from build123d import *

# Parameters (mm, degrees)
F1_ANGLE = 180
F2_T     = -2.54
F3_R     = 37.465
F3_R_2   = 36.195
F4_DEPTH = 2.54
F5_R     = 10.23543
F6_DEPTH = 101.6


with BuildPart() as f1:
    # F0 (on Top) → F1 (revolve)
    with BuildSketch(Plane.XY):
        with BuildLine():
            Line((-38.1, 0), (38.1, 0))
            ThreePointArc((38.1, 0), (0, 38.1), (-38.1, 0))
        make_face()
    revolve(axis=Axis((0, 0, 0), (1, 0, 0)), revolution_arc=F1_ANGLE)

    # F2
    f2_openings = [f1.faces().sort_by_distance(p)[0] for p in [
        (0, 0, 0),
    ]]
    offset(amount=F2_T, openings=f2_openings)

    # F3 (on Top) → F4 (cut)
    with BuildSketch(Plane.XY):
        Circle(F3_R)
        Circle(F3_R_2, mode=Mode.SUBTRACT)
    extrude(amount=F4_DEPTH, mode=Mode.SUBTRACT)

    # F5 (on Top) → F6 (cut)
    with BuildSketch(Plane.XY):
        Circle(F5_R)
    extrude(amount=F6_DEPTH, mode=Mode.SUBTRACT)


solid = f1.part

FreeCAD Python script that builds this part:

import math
import FreeCAD as App
import Part
import Sketcher

V = App.Vector
Q = App.Units.Quantity


def faces_at(feature, points):
    """Names of the faces that lie closest to the given points."""
    faces = feature.Shape.Faces
    near = lambda p: min(range(len(faces)), key=lambda i: faces[i].distToShape(Part.Vertex(*p))[0])
    return sorted({f"Face{near(p) + 1}" for p in points})

doc = App.newDocument("Part")
body = doc.addObject("PartDesign::Body", "Body")

sketch1 = body.newObject("Sketcher::SketchObject", "Sketch")
sketch1.AttachmentSupport = (doc.getObject("XY_Plane"), [""])
sketch1.MapMode = "FlatFace"
sketch1.addGeometry([
    Part.LineSegment(V(-38, 0, 0), V(38, 0, 0)),
    Part.ArcOfCircle(Part.Circle(V(0, 0, 0), V(0, 0, 1), 38), math.radians(0), math.radians(180)),
], False)
sketch1.addConstraint([
    Sketcher.Constraint("Coincident", 0, 1, 1, 2),
    Sketcher.Constraint("Coincident", 1, 1, 0, 2),
    Sketcher.Constraint("Horizontal", 0),
    Sketcher.Constraint("Coincident", 1, 3, -1, 1),
    Sketcher.Constraint("PointOnObject", 0, 1, -1),
    Sketcher.Constraint("Radius", 1, Q("1.5 in")),
])
revolution = body.newObject("PartDesign::Revolution", "Revolution")
revolution.Profile = sketch1
revolution.ReferenceAxis = (sketch1, ["H_Axis"])
revolution.Angle = 180
doc.recompute()

thickness = body.newObject("PartDesign::Thickness", "Thickness")
thickness.Base = (revolution, faces_at(revolution, [(0, 0, 0)]))
thickness.Value = Q("0.1 in")
thickness.Reversed = True
thickness.Join = "Arc"

sketch2 = body.newObject("Sketcher::SketchObject", "Sketch001")
sketch2.AttachmentSupport = (doc.getObject("XY_Plane"), [""])
sketch2.MapMode = "FlatFace"
sketch2.addGeometry([
    Part.Circle(V(0, 0, 0), V(0, 0, 1), 37),
    Part.Circle(V(0, 0, 0), V(0, 0, 1), 36),
], False)
sketch2.addConstraint([
    Sketcher.Constraint("Coincident", 0, 3, -1, 1),
    Sketcher.Constraint("Coincident", 1, 3, -1, 1),
    Sketcher.Constraint("Diameter", 0, Q("2.95 in")),
    Sketcher.Constraint("Diameter", 1, Q("2.85 in")),
])
pocket1 = body.newObject("PartDesign::Pocket", "Pocket")
pocket1.Profile = sketch2
pocket1.Length = Q("0.1 in")
pocket1.Reversed = True

sketch3 = body.newObject("Sketcher::SketchObject", "Sketch002")
sketch3.AttachmentSupport = (doc.getObject("XY_Plane"), [""])
sketch3.MapMode = "FlatFace"
sketch3.addGeometry(Part.Circle(V(0, 0, 0), V(0, 0, 1), 10), False)
sketch3.addConstraint([
    Sketcher.Constraint("Coincident", 0, 3, -1, 1),
    Sketcher.Constraint("Diameter", 0, Q("20.47086 mm")),
])
pocket2 = body.newObject("PartDesign::Pocket", "Pocket001")
pocket2.Profile = sketch3
pocket2.Length = Q("4 in")
pocket2.Reversed = True

doc.recompute()
